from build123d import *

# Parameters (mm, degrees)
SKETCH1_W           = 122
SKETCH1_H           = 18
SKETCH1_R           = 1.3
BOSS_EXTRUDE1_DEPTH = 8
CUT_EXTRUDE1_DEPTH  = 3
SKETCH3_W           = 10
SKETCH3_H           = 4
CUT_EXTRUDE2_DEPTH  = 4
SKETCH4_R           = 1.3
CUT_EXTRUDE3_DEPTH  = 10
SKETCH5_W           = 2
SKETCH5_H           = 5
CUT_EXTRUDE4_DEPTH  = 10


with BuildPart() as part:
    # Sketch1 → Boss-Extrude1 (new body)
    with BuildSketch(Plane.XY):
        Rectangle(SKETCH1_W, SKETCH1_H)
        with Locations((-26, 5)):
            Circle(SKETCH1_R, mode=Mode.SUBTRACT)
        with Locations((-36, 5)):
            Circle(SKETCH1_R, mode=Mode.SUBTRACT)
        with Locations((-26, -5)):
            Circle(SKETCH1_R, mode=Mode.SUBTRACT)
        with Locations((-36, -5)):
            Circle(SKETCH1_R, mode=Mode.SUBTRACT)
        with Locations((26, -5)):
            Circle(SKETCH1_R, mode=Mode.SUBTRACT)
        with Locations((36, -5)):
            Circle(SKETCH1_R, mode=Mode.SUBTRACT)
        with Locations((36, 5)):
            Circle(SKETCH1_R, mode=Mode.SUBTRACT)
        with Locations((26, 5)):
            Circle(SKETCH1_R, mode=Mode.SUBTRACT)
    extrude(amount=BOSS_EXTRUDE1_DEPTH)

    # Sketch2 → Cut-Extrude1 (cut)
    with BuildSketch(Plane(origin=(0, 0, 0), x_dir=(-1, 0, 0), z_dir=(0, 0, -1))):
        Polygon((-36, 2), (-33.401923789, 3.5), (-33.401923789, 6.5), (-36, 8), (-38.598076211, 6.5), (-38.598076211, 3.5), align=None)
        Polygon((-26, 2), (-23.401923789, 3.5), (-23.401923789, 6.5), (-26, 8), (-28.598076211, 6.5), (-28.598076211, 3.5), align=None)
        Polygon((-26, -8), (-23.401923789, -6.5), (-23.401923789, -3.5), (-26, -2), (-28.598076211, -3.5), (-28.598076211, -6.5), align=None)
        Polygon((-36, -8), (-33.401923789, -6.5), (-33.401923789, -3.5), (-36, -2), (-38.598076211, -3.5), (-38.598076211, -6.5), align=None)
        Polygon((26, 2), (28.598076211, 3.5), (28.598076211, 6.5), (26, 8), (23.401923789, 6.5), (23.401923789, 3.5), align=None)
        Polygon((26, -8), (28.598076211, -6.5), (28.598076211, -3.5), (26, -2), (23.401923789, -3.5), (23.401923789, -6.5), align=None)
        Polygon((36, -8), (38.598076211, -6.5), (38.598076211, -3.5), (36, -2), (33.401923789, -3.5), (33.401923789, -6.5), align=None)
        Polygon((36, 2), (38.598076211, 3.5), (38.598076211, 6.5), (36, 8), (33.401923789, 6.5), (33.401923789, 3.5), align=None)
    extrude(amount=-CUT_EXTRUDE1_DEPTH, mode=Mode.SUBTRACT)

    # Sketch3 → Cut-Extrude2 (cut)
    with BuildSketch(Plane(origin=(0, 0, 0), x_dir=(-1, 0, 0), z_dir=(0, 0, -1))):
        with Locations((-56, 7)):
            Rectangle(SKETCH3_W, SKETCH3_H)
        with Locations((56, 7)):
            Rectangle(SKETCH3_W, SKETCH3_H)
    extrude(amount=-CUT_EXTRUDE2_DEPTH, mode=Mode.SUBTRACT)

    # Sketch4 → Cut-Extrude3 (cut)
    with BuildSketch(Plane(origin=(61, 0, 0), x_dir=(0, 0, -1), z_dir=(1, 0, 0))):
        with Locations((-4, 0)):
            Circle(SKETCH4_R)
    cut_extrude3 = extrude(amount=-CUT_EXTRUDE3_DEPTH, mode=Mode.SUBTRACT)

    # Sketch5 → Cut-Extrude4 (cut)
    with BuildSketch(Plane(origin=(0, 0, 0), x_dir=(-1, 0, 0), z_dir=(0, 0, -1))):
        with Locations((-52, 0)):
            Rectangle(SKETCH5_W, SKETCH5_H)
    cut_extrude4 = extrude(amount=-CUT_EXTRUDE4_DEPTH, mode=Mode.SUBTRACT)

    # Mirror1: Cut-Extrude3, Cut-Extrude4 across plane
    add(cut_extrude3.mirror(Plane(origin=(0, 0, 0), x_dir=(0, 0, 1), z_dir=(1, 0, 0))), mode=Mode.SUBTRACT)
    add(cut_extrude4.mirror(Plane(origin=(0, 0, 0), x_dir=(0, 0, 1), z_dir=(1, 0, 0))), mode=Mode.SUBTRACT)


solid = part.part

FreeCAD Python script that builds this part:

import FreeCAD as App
import Part
import Sketcher
from FreeCAD import Vector
Q = App.Units.Quantity


def add_polygon(sketch, points):
    """Adds a closed chain of lines whose ends are joined by coincident constraints."""
    first, n = sketch.GeometryCount, len(points)
    for a, b in zip(points, points[1:] + points[:1]):
        sketch.addGeometry(Part.LineSegment(App.Vector(*a, 0), App.Vector(*b, 0)), False)
    for i in range(n):
        sketch.addConstraint(Sketcher.Constraint("Coincident", first + i, 2, first + (i + 1) % n, 1))

doc = App.newDocument("Part")
params = doc.addObject("Spreadsheet::Sheet", "Params")
for row, (alias, value) in enumerate([
    ("sketch1_diameter", "2.6 mm"),
    ("sketch1_width", "122 mm"),
    ("sketch1_height", "18 mm"),
    ("pad1_length", "8 mm"),
    ("sketch2_height", "3 mm"),
    ("sketch2_length", "3 mm"),
    ("pocket1_length", "3 mm"),
    ("sketch3_width", "10 mm"),
    ("sketch3_height", "4 mm"),
    ("pocket2_length", "4 mm"),
    ("sketch4_diameter", "2.6 mm"),
    ("pocket3_length", "10 mm"),
    ("sketch5_width", "2 mm"),
    ("sketch5_height", "5 mm"),
    ("pocket4_length", "10 mm"),
], start=1):
    params.set(f"A{row}", alias)
    params.set(f"B{row}", "=" + value)
    params.setAlias(f"B{row}", alias)

body = doc.addObject("PartDesign::Body", "Body")

sketch1 = doc.addObject("Sketcher::SketchObject", "Sketch")
body.addObject(sketch1)
sketch1.AttachmentSupport = (doc.XY_Plane, [""])
sketch1.MapMode = "FlatFace"
add_polygon(sketch1, [(-61, 9), (-61, -9), (61, -9), (61, 9)])
sketch1.addGeometry(Part.Circle(Vector(-36, -5, 0), Vector(0, 0, 1), 1.3), False)
sketch1.addGeometry(Part.Circle(Vector(-26, -5, 0), Vector(0, 0, 1), 1.3), False)
sketch1.addGeometry(Part.Circle(Vector(26, -5, 0), Vector(0, 0, 1), 1.3), False)
sketch1.addGeometry(Part.Circle(Vector(36, -5, 0), Vector(0, 0, 1), 1.3), False)
sketch1.addGeometry(Part.Circle(Vector(-36, 5, 0), Vector(0, 0, 1), 1.3), False)
sketch1.addGeometry(Part.Circle(Vector(-26, 5, 0), Vector(0, 0, 1), 1.3), False)
sketch1.addGeometry(Part.Circle(Vector(26, 5, 0), Vector(0, 0, 1), 1.3), False)
sketch1.addGeometry(Part.Circle(Vector(36, 5, 0), Vector(0, 0, 1), 1.3), False)
sketch1.addConstraint(Sketcher.Constraint("Vertical", 0))
sketch1.addConstraint(Sketcher.Constraint("Horizontal", 1))
sketch1.addConstraint(Sketcher.Constraint("Vertical", 2))
sketch1.addConstraint(Sketcher.Constraint("Horizontal", 3))
sketch1.addConstraint(Sketcher.Constraint("Equal", 4, 5))
sketch1.addConstraint(Sketcher.Constraint("Equal", 5, 6))
sketch1.addConstraint(Sketcher.Constraint("Equal", 6, 7))
sketch1.addConstraint(Sketcher.Constraint("Equal", 7, 8))
sketch1.addConstraint(Sketcher.Constraint("Equal", 8, 9))
sketch1.addConstraint(Sketcher.Constraint("Equal", 9, 10))
sketch1.addConstraint(Sketcher.Constraint("Equal", 10, 11))
sketch1.addConstraint(Sketcher.Constraint("Symmetric", 7, 3, 8, 3, -1, 1))
sketch1.addConstraint(Sketcher.Constraint("Symmetric", 6, 3, 9, 3, -1, 1))
sketch1.addConstraint(Sketcher.Constraint("Symmetric", 5, 3, 10, 3, -1, 1))
sketch1.addConstraint(Sketcher.Constraint("Symmetric", 4, 3, 11, 3, -1, 1))
sketch1.addConstraint(Sketcher.Constraint("Symmetric", 0, 2, 2, 2, -1, 1))
sketch1.addConstraint(Sketcher.Constraint("Symmetric", 5, 3, 6, 3, -2))
sketch1.addConstraint(Sketcher.Constraint("Symmetric", 4, 3, 7, 3, -2))
sketch1.addConstraint(Sketcher.Constraint("Horizontal", 4, 3, 5, 3))
sketch1.addConstraint(Sketcher.Constraint("Diameter", 4, Q("2.6 mm")))
sketch1.addConstraint(Sketcher.Constraint("DistanceX", 1, 1, 1, 2, Q("122 mm")))
sketch1.addConstraint(Sketcher.Constraint("DistanceY", 0, 2, 0, 1, Q("18 mm")))
sketch1.addConstraint(Sketcher.Constraint("DistanceX", 4, 3, -1, 1, Q("36 mm")))
sketch1.addConstraint(Sketcher.Constraint("DistanceY", 4, 3, -1, 1, Q("5 mm")))
sketch1.addConstraint(Sketcher.Constraint("DistanceX", 5, 3, -1, 1, Q("26 mm")))
sketch1.setExpression("Constraints[23]", "Params.sketch1_diameter")
sketch1.setExpression("Constraints[24]", "Params.sketch1_width")
sketch1.setExpression("Constraints[25]", "Params.sketch1_height")
pad1 = doc.addObject("PartDesign::Pad", "Pad")
body.addObject(pad1)
pad1.Profile = sketch1
pad1.setExpression("Length", "Params.pad1_length")

sketch2 = doc.addObject("Sketcher::SketchObject", "Sketch001")
body.addObject(sketch2)
sketch2.AttachmentSupport = (doc.XY_Plane, [""])
sketch2.MapMode = "FlatFace"
add_polygon(sketch2, [(36, 2), (33.4, 3.5), (33.4, 6.5), (36, 8), (38.6, 6.5), (38.6, 3.5)])
add_polygon(sketch2, [(26, 2), (23.4, 3.5), (23.4, 6.5), (26, 8), (28.6, 6.5), (28.6, 3.5)])
add_polygon(sketch2, [(26, -8), (23.4, -6.5), (23.4, -3.5), (26, -2), (28.6, -3.5), (28.6, -6.5)])
add_polygon(sketch2, [(36, -8), (33.4, -6.5), (33.4, -3.5), (36, -2), (38.6, -3.5), (38.6, -6.5)])
add_polygon(sketch2, [(-26, 2), (-28.6, 3.5), (-28.6, 6.5), (-26, 8), (-23.4, 6.5), (-23.4, 3.5)])
add_polygon(sketch2, [(-26, -8), (-28.6, -6.5), (-28.6, -3.5), (-26, -2), (-23.4, -3.5), (-23.4, -6.5)])
add_polygon(sketch2, [(-36, -8), (-38.6, -6.5), (-38.6, -3.5), (-36, -2), (-33.4, -3.5), (-33.4, -6.5)])
add_polygon(sketch2, [(-36, 2), (-38.6, 3.5), (-38.6, 6.5), (-36, 8), (-33.4, 6.5), (-33.4, 3.5)])
sketch2.addConstraint(Sketcher.Constraint("Vertical", 1))
sketch2.addConstraint(Sketcher.Constraint("Vertical", 4))
sketch2.addConstraint(Sketcher.Constraint("Vertical", 7))
sketch2.addConstraint(Sketcher.Constraint("Vertical", 10))
sketch2.addConstraint(Sketcher.Constraint("Vertical", 13))
sketch2.addConstraint(Sketcher.Constraint("Vertical", 16))
sketch2.addConstraint(Sketcher.Constraint("Vertical", 19))
sketch2.addConstraint(Sketcher.Constraint("Vertical", 22))
sketch2.addConstraint(Sketcher.Constraint("Vertical", 25))
sketch2.addConstraint(Sketcher.Constraint("Vertical", 28))
sketch2.addConstraint(Sketcher.Constraint("Vertical", 31))
sketch2.addConstraint(Sketcher.Constraint("Vertical", 34))
sketch2.addConstraint(Sketcher.Constraint("Vertical", 37))
sketch2.addConstraint(Sketcher.Constraint("Vertical", 40))
sketch2.addConstraint(Sketcher.Constraint("Vertical", 43))
sketch2.addConstraint(Sketcher.Constraint("Vertical", 46))
sketch2.addConstraint(Sketcher.Constraint("Symmetric", 15, 2, 24, 2, -1, 1))
sketch2.addConstraint(Sketcher.Constraint("Symmetric", 17, 2, 26, 2, -1, 1))
sketch2.addConstraint(Sketcher.Constraint("Symmetric", 12, 2, 27, 2, -1, 1))
sketch2.addConstraint(Sketcher.Constraint("Symmetric", 14, 2, 29, 2, -1, 1))
sketch2.addConstraint(Sketcher.Constraint("Symmetric", 9, 2, 30, 2, -1, 1))
sketch2.addConstraint(Sketcher.Constraint("Symmetric", 11, 2, 32, 2, -1, 1))
sketch2.addConstraint(Sketcher.Constraint("Symmetric", 6, 2, 33, 2, -1, 1))
sketch2.addConstraint(Sketcher.Constraint("Symmetric", 8, 2, 35, 2, -1, 1))
sketch2.addConstraint(Sketcher.Constraint("Symmetric", 3, 2, 36, 2, -1, 1))
sketch2.addConstraint(Sketcher.Constraint("Symmetric", 5, 2, 38, 2, -1, 1))
sketch2.addConstraint(Sketcher.Constraint("Symmetric", 0, 2, 39, 2, -1, 1))
sketch2.addConstraint(Sketcher.Constraint("Symmetric", 2, 2, 41, 2, -1, 1))
sketch2.addConstraint(Sketcher.Constraint("Symmetric", 21, 2, 42, 2, -1, 1))
sketch2.addConstraint(Sketcher.Constraint("Symmetric", 23, 2, 44, 2, -1, 1))
sketch2.addConstraint(Sketcher.Constraint("Symmetric", 18, 2, 45, 2, -1, 1))
sketch2.addConstraint(Sketcher.Constraint("Symmetric", 20, 2, 47, 2, -1, 1))
sketch2.addConstraint(Sketcher.Constraint("Symmetric", 10, 2, 24, 2, -2))
sketch2.addConstraint(Sketcher.Constraint("Symmetric", 8, 2, 26, 2, -2))
sketch2.addConstraint(Sketcher.Constraint("Symmetric", 7, 2, 27, 2, -2))
sketch2.addConstraint(Sketcher.Constraint("Symmetric", 11, 2, 29, 2, -2))
sketch2.addConstraint(Sketcher.Constraint("Symmetric", 22, 2, 36, 2, -2))
sketch2.addConstraint(Sketcher.Constraint("Symmetric", 20, 2, 38, 2, -2))
sketch2.addConstraint(Sketcher.Constraint("Symmetric", 19, 2, 39, 2, -2))
sketch2.addConstraint(Sketcher.Constraint("Symmetric", 23, 2, 41, 2, -2))
sketch2.addConstraint(Sketcher.Constraint("Parallel", 0, 3))
sketch2.addConstraint(Sketcher.Constraint("Parallel", 2, 5))
sketch2.addConstraint(Sketcher.Constraint("Parallel", 3, 6))
sketch2.addConstraint(Sketcher.Constraint("Parallel", 5, 8))
sketch2.addConstraint(Sketcher.Constraint("Parallel", 6, 9))
sketch2.addConstraint(Sketcher.Constraint("Parallel", 8, 11))
sketch2.addConstraint(Sketcher.Constraint("Parallel", 9, 12))
sketch2.addConstraint(Sketcher.Constraint("Parallel", 11, 14))
sketch2.addConstraint(Sketcher.Constraint("Parallel", 14, 17))
sketch2.addConstraint(Sketcher.Constraint("Parallel", 15, 18))
sketch2.addConstraint(Sketcher.Constraint("Parallel", 18, 21))
sketch2.addConstraint(Sketcher.Constraint("Parallel", 23, 26))
sketch2.addConstraint(Sketcher.Constraint("Parallel", 26, 29))
sketch2.addConstraint(Sketcher.Constraint("Parallel", 29, 32))
sketch2.addConstraint(Sketcher.Constraint("Parallel", 32, 35))
sketch2.addConstraint(Sketcher.Constraint("Parallel", 35, 38))
sketch2.addConstraint(Sketcher.Constraint("Parallel", 38, 41))
sketch2.addConstraint(Sketcher.Constraint("Parallel", 41, 44))
sketch2.addConstraint(Sketcher.Constraint("Parallel", 44, 47))
sketch2.addConstraint(Sketcher.Constraint("Horizontal", 1, 2, 3, 2))
sketch2.addConstraint(Sketcher.Constraint("Horizontal", 0, 2, 4, 2))
sketch2.addConstraint(Sketcher.Constraint("Horizontal", 4, 2, 6, 2))
sketch2.addConstraint(Sketcher.Constraint("Horizontal", 3, 2, 7, 2))
sketch2.addConstraint(Sketcher.Constraint("Horizontal", 2, 2, 8, 2))
sketch2.addConstraint(Sketcher.Constraint("Horizontal", 7, 2, 9, 2))
sketch2.addConstraint(Sketcher.Constraint("Horizontal", 6, 2, 10, 2))
sketch2.addConstraint(Sketcher.Constraint("DistanceY", 1, 1, 1, 2, Q("3 mm")))
sketch2.addConstraint(Sketcher.Constraint("Angle", 0, Q("150 deg")))
sketch2.addConstraint(Sketcher.Constraint("Distance", 0, Q("3 mm")))
sketch2.addConstraint(Sketcher.Constraint("DistanceX", -1, 1, 2, 2, Q("36 mm")))
sketch2.addConstraint(Sketcher.Constraint("DistanceY", -1, 1, 2, 2, Q("8 mm")))
sketch2.addConstraint(Sketcher.Constraint("DistanceX", -1, 1, 8, 2, Q("26 mm")))
sketch2.setExpression("Constraints[114]", "Params.sketch2_height")
sketch2.setExpression("Constraints[116]", "Params.sketch2_length")
pocket1 = doc.addObject("PartDesign::Pocket", "Pocket")
body.addObject(pocket1)
pocket1.Profile = sketch2
pocket1.setExpression("Length", "Params.pocket1_length")
pocket1.Reversed = True

sketch3 = doc.addObject("Sketcher::SketchObject", "Sketch002")
body.addObject(sketch3)
sketch3.AttachmentSupport = (doc.XY_Plane, [""])
sketch3.MapMode = "FlatFace"
add_polygon(sketch3, [(61, 9), (61, 5), (51, 5), (51, 9)])
add_polygon(sketch3, [(-51, 9), (-51, 5), (-61, 5), (-61, 9)])
sketch3.addConstraint(Sketcher.Constraint("Vertical", 0))
sketch3.addConstraint(Sketcher.Constraint("Horizontal", 1))
sketch3.addConstraint(Sketcher.Constraint("Vertical", 2))
sketch3.addConstraint(Sketcher.Constraint("Horizontal", 3))
sketch3.addConstraint(Sketcher.Constraint("Vertical", 4))
sketch3.addConstraint(Sketcher.Constraint("Horizontal", 5))
sketch3.addConstraint(Sketcher.Constraint("Vertical", 6))
sketch3.addConstraint(Sketcher.Constraint("Horizontal", 7))
sketch3.addConstraint(Sketcher.Constraint("Symmetric", 1, 2, 4, 2, -2))
sketch3.addConstraint(Sketcher.Constraint("Symmetric", 3, 2, 6, 2, -2))
sketch3.addConstraint(Sketcher.Constraint("DistanceX", 1, 2, 1, 1, Q("10 mm")))
sketch3.addConstraint(Sketcher.Constraint("DistanceY", 0, 2, 0, 1, Q("4 mm")))
sketch3.addConstraint(Sketcher.Constraint("DistanceX", -1, 1, 0, 2, Q("61 mm")))
sketch3.addConstraint(Sketcher.Constraint("DistanceY", -1, 1, 0, 2, Q("5 mm")))
sketch3.setExpression("Constraints[18]", "Params.sketch3_width")
sketch3.setExpression("Constraints[19]", "Params.sketch3_height")
pocket2 = doc.addObject("PartDesign::Pocket", "Pocket001")
body.addObject(pocket2)
pocket2.Profile = sketch3
pocket2.setExpression("Length", "Params.pocket2_length")
pocket2.Reversed = True

sketch4 = doc.addObject("Sketcher::SketchObject", "Sketch003")
body.addObject(sketch4)
sketch4.AttachmentSupport = (doc.YZ_Plane, [""])
sketch4.MapMode = "FlatFace"
sketch4.AttachmentOffset = App.Placement(Vector(0, 0, 61), App.Rotation())
sketch4.addGeometry(Part.Circle(Vector(0, 4, 0), Vector(0, 0, 1), 1.3), False)
sketch4.addConstraint(Sketcher.Constraint("PointOnObject", 0, 3, -2))
sketch4.addConstraint(Sketcher.Constraint("Diameter", 0, Q("2.6 mm")))
sketch4.addConstraint(Sketcher.Constraint("DistanceY", -1, 1, 0, 3, Q("4 mm")))
sketch4.setExpression("Constraints[1]", "Params.sketch4_diameter")
pocket3 = doc.addObject("PartDesign::Pocket", "Pocket002")
body.addObject(pocket3)
pocket3.Profile = sketch4
pocket3.setExpression("Length", "Params.pocket3_length")

sketch5 = doc.addObject("Sketcher::SketchObject", "Sketch004")
body.addObject(sketch5)
sketch5.AttachmentSupport = (doc.XY_Plane, [""])
sketch5.MapMode = "FlatFace"
add_polygon(sketch5, [(53, 2.5), (53, -2.5), (51, -2.5), (51, 2.5)])
sketch5.addConstraint(Sketcher.Constraint("Vertical", 0))
sketch5.addConstraint(Sketcher.Constraint("Horizontal", 1))
sketch5.addConstraint(Sketcher.Constraint("Vertical", 2))
sketch5.addConstraint(Sketcher.Constraint("Horizontal", 3))
sketch5.addConstraint(Sketcher.Constraint("DistanceX", 1, 2, 1, 1, Q("2 mm")))
sketch5.addConstraint(Sketcher.Constraint("DistanceY", 0, 2, 0, 1, Q("5 mm")))
sketch5.addConstraint(Sketcher.Constraint("DistanceX", -1, 1, 0, 2, Q("53 mm")))
sketch5.addConstraint(Sketcher.Constraint("DistanceY", 0, 2, -1, 1, Q("2.5 mm")))
sketch5.setExpression("Constraints[8]", "Params.sketch5_width")
sketch5.setExpression("Constraints[9]", "Params.sketch5_height")
pocket4 = doc.addObject("PartDesign::Pocket", "Pocket003")
body.addObject(pocket4)
pocket4.Profile = sketch5
pocket4.setExpression("Length", "Params.pocket4_length")
pocket4.Reversed = True
doc.recompute()

mirrored = doc.addObject("PartDesign::Mirrored", "Mirrored")
body.addObject(mirrored)
mirrored.Originals = [pocket3, pocket4]
mirrored.MirrorPlane = (doc.YZ_Plane, [""])
body.Tip = mirrored

doc.recompute()
